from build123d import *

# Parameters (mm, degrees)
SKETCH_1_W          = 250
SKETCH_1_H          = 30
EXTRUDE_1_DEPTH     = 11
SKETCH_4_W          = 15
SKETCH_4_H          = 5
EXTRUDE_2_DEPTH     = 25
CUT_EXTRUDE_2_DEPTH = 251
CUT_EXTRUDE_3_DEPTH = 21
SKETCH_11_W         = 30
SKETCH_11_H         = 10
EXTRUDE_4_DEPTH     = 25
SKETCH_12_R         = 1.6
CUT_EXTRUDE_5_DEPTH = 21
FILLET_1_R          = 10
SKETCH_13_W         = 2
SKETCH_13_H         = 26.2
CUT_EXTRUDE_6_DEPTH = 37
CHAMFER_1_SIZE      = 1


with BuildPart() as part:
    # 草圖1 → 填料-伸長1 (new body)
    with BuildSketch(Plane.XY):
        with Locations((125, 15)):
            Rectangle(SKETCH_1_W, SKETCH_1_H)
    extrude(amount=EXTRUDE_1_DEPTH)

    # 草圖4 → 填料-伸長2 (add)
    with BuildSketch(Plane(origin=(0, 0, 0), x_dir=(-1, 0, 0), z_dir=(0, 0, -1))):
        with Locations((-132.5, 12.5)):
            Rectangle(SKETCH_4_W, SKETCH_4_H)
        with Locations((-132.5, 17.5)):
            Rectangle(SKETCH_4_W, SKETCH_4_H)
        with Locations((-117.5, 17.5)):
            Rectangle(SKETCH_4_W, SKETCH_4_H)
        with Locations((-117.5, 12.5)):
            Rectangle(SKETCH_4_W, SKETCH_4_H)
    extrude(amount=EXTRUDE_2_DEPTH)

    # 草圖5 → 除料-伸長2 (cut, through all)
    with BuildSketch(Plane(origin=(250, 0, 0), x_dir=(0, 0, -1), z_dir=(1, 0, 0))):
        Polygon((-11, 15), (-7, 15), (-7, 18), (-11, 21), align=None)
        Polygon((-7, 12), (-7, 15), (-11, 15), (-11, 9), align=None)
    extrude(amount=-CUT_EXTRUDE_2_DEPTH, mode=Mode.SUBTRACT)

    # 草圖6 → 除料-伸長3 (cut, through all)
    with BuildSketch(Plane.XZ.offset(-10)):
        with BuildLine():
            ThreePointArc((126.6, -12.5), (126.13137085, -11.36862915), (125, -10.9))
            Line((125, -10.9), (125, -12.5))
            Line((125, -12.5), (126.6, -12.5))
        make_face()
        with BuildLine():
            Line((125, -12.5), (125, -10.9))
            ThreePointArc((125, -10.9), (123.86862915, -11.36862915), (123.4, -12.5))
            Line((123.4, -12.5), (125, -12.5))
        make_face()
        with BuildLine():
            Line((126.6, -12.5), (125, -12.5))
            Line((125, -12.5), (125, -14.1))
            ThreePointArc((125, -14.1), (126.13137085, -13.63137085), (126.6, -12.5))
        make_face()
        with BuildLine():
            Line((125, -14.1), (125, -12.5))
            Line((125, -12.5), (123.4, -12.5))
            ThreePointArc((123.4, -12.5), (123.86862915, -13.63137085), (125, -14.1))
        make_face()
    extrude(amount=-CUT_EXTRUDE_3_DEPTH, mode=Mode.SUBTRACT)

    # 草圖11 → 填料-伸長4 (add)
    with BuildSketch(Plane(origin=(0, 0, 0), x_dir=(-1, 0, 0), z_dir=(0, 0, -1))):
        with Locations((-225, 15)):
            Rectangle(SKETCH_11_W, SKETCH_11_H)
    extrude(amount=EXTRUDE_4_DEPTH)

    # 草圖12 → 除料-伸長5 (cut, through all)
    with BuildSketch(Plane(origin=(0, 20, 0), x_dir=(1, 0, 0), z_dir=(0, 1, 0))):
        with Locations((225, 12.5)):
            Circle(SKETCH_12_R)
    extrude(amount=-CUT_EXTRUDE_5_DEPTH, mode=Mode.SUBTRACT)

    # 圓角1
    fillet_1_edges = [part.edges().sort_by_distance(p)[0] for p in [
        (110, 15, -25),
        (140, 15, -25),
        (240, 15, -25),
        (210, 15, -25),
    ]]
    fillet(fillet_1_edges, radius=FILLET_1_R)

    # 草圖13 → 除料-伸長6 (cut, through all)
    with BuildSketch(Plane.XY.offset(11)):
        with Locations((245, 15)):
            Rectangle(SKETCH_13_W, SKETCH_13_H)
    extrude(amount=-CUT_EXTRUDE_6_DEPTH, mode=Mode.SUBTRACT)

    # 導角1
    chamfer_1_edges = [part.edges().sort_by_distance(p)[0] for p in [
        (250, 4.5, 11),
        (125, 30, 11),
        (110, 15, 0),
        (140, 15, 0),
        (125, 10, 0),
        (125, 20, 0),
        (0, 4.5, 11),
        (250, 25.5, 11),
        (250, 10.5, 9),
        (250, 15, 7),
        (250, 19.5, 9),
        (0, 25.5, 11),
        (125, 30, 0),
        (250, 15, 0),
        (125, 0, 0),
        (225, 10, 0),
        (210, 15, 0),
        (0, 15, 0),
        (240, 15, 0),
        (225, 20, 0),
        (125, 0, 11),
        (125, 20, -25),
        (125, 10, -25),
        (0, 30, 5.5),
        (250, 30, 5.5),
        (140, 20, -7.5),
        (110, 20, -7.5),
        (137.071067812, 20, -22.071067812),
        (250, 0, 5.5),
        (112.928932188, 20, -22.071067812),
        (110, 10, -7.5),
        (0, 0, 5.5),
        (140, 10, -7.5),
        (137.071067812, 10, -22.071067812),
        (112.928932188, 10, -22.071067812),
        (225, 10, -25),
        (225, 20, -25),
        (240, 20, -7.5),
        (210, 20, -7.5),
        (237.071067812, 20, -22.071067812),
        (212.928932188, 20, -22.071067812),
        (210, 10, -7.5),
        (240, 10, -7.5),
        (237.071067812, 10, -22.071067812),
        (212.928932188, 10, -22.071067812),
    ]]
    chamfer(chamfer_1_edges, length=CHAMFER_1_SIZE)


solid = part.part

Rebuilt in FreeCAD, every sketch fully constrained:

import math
import FreeCAD as App
import Part
import Sketcher
from FreeCAD import Vector
Q = App.Units.Quantity


def edges_at(feature, points):
    """Names of the edges that pass closest to the given points."""
    edges = feature.Shape.Edges
    near = lambda p: min(range(len(edges)), key=lambda i: edges[i].distToShape(Part.Vertex(*p))[0])
    return sorted({f"Edge{near(p) + 1}" for p in points})


def add_polygon(sketch, points):
    """Adds a closed chain of lines whose ends are joined by coincident constraints."""
    first, n = sketch.GeometryCount, len(points)
    for a, b in zip(points, points[1:] + points[:1]):
        sketch.addGeometry(Part.LineSegment(App.Vector(*a, 0), App.Vector(*b, 0)), False)
    for i in range(n):
        sketch.addConstraint(Sketcher.Constraint("Coincident", first + i, 2, first + (i + 1) % n, 1))

doc = App.newDocument("Part")
body = doc.addObject("PartDesign::Body", "Body")

sketch1 = body.newObject("Sketcher::SketchObject", "Sketch")
sketch1.AttachmentSupport = (doc.getObject("XY_Plane"), [""])
sketch1.MapMode = "FlatFace"
add_polygon(sketch1, [(0, 30), (0, 0), (250, 0), (250, 30)])
sketch1.addConstraint(Sketcher.Constraint("Vertical", 0))
sketch1.addConstraint(Sketcher.Constraint("Horizontal", 1))
sketch1.addConstraint(Sketcher.Constraint("Vertical", 2))
sketch1.addConstraint(Sketcher.Constraint("Horizontal", 3))
sketch1.addConstraint(Sketcher.Constraint("Coincident", 0, 2, -1, 1))
sketch1.addConstraint(Sketcher.Constraint("DistanceX", 1, 1, 1, 2, Q("250 mm")))
sketch1.addConstraint(Sketcher.Constraint("DistanceY", 0, 2, 0, 1, Q("30 mm")))
pad1 = body.newObject("PartDesign::Pad", "Pad")
pad1.Profile = sketch1
pad1.Length = 11

sketch2 = body.newObject("Sketcher::SketchObject", "Sketch001")
sketch2.AttachmentSupport = (doc.getObject("XY_Plane"), [""])
sketch2.MapMode = "FlatFace"
add_polygon(sketch2, [(140, 10), (110, 10), (110, 20), (140, 20)])
sketch2.addConstraint(Sketcher.Constraint("Horizontal", 0))
sketch2.addConstraint(Sketcher.Constraint("Vertical", 1))
sketch2.addConstraint(Sketcher.Constraint("Horizontal", 2))
sketch2.addConstraint(Sketcher.Constraint("Vertical", 3))
sketch2.addConstraint(Sketcher.Constraint("DistanceX", 0, 2, 0, 1, Q("30 mm")))
sketch2.addConstraint(Sketcher.Constraint("DistanceY", 1, 1, 1, 2, Q("10 mm")))
sketch2.addConstraint(Sketcher.Constraint("DistanceX", -1, 1, 0, 2, Q("110 mm")))
sketch2.addConstraint(Sketcher.Constraint("DistanceY", -1, 1, 0, 2, Q("10 mm")))
pad2 = body.newObject("PartDesign::Pad", "Pad001")
pad2.Profile = sketch2
pad2.Length = 25
pad2.Reversed = True

sketch3 = body.newObject("Sketcher::SketchObject", "Sketch002")
sketch3.AttachmentSupport = (doc.getObject("YZ_Plane"), [""])
sketch3.MapMode = "FlatFace"
sketch3.AttachmentOffset = App.Placement(Vector(0, 0, 250), App.Rotation())
add_polygon(sketch3, [(18, 7), (21, 11), (9, 11), (12, 7)])
sketch3.addConstraint(Sketcher.Constraint("Horizontal", 1))
sketch3.addConstraint(Sketcher.Constraint("Horizontal", 3))
sketch3.addConstraint(Sketcher.Constraint("Equal", 0, 2))
sketch3.addConstraint(Sketcher.Constraint("DistanceX", 1, 2, 1, 1, Q("12 mm")))
sketch3.addConstraint(Sketcher.Constraint("DistanceX", 3, 1, 3, 2, Q("6 mm")))
sketch3.addConstraint(Sketcher.Constraint("Distance", 0, Q("5 mm")))
sketch3.addConstraint(Sketcher.Constraint("DistanceX", -1, 1, 0, 2, Q("21 mm")))
sketch3.addConstraint(Sketcher.Constraint("DistanceY", -1, 1, 0, 2, Q("11 mm")))
pocket1 = body.newObject("PartDesign::Pocket", "Pocket")
pocket1.Profile = sketch3
pocket1.Type = "ThroughAll"

sketch4 = body.newObject("Sketcher::SketchObject", "Sketch003")
sketch4.AttachmentSupport = (doc.getObject("XZ_Plane"), [""])
sketch4.MapMode = "FlatFace"
sketch4.AttachmentOffset = App.Placement(Vector(0, 0, -10), App.Rotation())
sketch4.addGeometry(Part.ArcOfCircle(Part.Circle(Vector(125, -12.5, 0), Vector(0, 0, 1), 1.6), math.radians(90), math.radians(180)), False)
sketch4.addGeometry(Part.ArcOfCircle(Part.Circle(Vector(125, -12.5, 0), Vector(0, 0, 1), 1.6), math.radians(180), math.radians(270)), False)
sketch4.addGeometry(Part.ArcOfCircle(Part.Circle(Vector(125, -12.5, 0), Vector(0, 0, 1), 1.6), math.radians(-90), math.radians(0)), False)
sketch4.addGeometry(Part.ArcOfCircle(Part.Circle(Vector(125, -12.5, 0), Vector(0, 0, 1), 1.6), math.radians(0), math.radians(90)), False)
sketch4.addConstraint(Sketcher.Constraint("Tangent", 0, 2, 1, 1))
sketch4.addConstraint(Sketcher.Constraint("Tangent", 1, 2, 2, 1))
sketch4.addConstraint(Sketcher.Constraint("Tangent", 2, 2, 3, 1))
sketch4.addConstraint(Sketcher.Constraint("Tangent", 3, 2, 0, 1))
sketch4.addConstraint(Sketcher.Constraint("Equal", 0, 1))
sketch4.addConstraint(Sketcher.Constraint("Horizontal", 3, 3, 0, 2))
sketch4.addConstraint(Sketcher.Constraint("Horizontal", 0, 2, 2, 2))
sketch4.addConstraint(Sketcher.Constraint("Vertical", 3, 3, 1, 2))
sketch4.addConstraint(Sketcher.Constraint("Vertical", 1, 2, 3, 2))
sketch4.addConstraint(Sketcher.Constraint("Radius", 0, Q("1.6 mm")))
sketch4.addConstraint(Sketcher.Constraint("DistanceX", -1, 1, 0, 3, Q("125 mm")))
sketch4.addConstraint(Sketcher.Constraint("DistanceY", 0, 3, -1, 1, Q("12.5 mm")))
pocket2 = body.newObject("PartDesign::Pocket", "Pocket001")
pocket2.Profile = sketch4
pocket2.Type = "ThroughAll"

sketch5 = body.newObject("Sketcher::SketchObject", "Sketch004")
sketch5.AttachmentSupport = (doc.getObject("XY_Plane"), [""])
sketch5.MapMode = "FlatFace"
add_polygon(sketch5, [(240, 20), (240, 10), (210, 10), (210, 20)])
sketch5.addConstraint(Sketcher.Constraint("Vertical", 0))
sketch5.addConstraint(Sketcher.Constraint("Horizontal", 1))
sketch5.addConstraint(Sketcher.Constraint("Vertical", 2))
sketch5.addConstraint(Sketcher.Constraint("Horizontal", 3))
sketch5.addConstraint(Sketcher.Constraint("DistanceX", 1, 2, 1, 1, Q("30 mm")))
sketch5.addConstraint(Sketcher.Constraint("DistanceY", 0, 2, 0, 1, Q("10 mm")))
sketch5.addConstraint(Sketcher.Constraint("DistanceX", -1, 1, 0, 2, Q("240 mm")))
sketch5.addConstraint(Sketcher.Constraint("DistanceY", -1, 1, 0, 2, Q("10 mm")))
pad3 = body.newObject("PartDesign::Pad", "Pad002")
pad3.Profile = sketch5
pad3.Length = 25
pad3.Reversed = True

sketch6 = body.newObject("Sketcher::SketchObject", "Sketch005")
sketch6.AttachmentSupport = (doc.getObject("XZ_Plane"), [""])
sketch6.MapMode = "FlatFace"
sketch6.AttachmentOffset = App.Placement(Vector(0, 0, -20), App.Rotation())
sketch6.addGeometry(Part.Circle(Vector(225, -12.5, 0), Vector(0, 0, 1), 1.6), False)
sketch6.addConstraint(Sketcher.Constraint("Diameter", 0, Q("3.2 mm")))
sketch6.addConstraint(Sketcher.Constraint("DistanceX", -1, 1, 0, 3, Q("225 mm")))
sketch6.addConstraint(Sketcher.Constraint("DistanceY", 0, 3, -1, 1, Q("12.5 mm")))
pocket3 = body.newObject("PartDesign::Pocket", "Pocket002")
pocket3.Profile = sketch6
pocket3.Type = "ThroughAll"
pocket3.Reversed = True
doc.recompute()

fillet = body.newObject("PartDesign::Fillet", "Fillet")
fillet.Base = (pocket3, edges_at(pocket3, [
    (110, 15, -25),
    (140, 15, -25),
    (240, 15, -25),
    (210, 15, -25),
]))
fillet.Radius = 10

sketch7 = body.newObject("Sketcher::SketchObject", "Sketch006")
sketch7.AttachmentSupport = (doc.getObject("XY_Plane"), [""])
sketch7.MapMode = "FlatFace"
sketch7.AttachmentOffset = App.Placement(Vector(0, 0, 11), App.Rotation())
add_polygon(sketch7, [(244, 28.1), (244, 1.9), (246, 1.9), (246, 28.1)])
sketch7.addConstraint(Sketcher.Constraint("Vertical", 0))
sketch7.addConstraint(Sketcher.Constraint("Horizontal", 1))
sketch7.addConstraint(Sketcher.Constraint("Vertical", 2))
sketch7.addConstraint(Sketcher.Constraint("Horizontal", 3))
sketch7.addConstraint(Sketcher.Constraint("DistanceX", 1, 1, 1, 2, Q("2 mm")))
sketch7.addConstraint(Sketcher.Constraint("DistanceY", 0, 2, 0, 1, Q("26.2 mm")))
sketch7.addConstraint(Sketcher.Constraint("DistanceX", -1, 1, 0, 2, Q("244 mm")))
sketch7.addConstraint(Sketcher.Constraint("DistanceY", -1, 1, 0, 2, Q("1.9 mm")))
pocket4 = body.newObject("PartDesign::Pocket", "Pocket003")
pocket4.Profile = sketch7
pocket4.Type = "ThroughAll"
doc.recompute()

chamfer = body.newObject("PartDesign::Chamfer", "Chamfer")
chamfer.Base = (pocket4, edges_at(pocket4, [
    (250, 4.5, 11),
    (125, 30, 11),
    (110, 15, 0),
    (140, 15, 0),
    (125, 10, 0),
    (125, 20, 0),
    (0, 4.5, 11),
    (250, 25.5, 11),
    (250, 10.5, 9),
    (250, 15, 7),
    (250, 19.5, 9),
    (0, 25.5, 11),
    (125, 30, 0),
    (250, 15, 0),
    (125, 0, 0),
    (225, 10, 0),
    (210, 15, 0),
    (0, 15, 0),
    (240, 15, 0),
    (225, 20, 0),
    (125, 0, 11),
    (125, 20, -25),
    (125, 10, -25),
    (0, 30, 5.5),
    (250, 30, 5.5),
    (140, 20, -7.5),
    (110, 20, -7.5),
    (137.071, 20, -22.071),
    (250, 0, 5.5),
    (112.929, 20, -22.071),
    (110, 10, -7.5),
    (0, 0, 5.5),
    (140, 10, -7.5),
    (137.071, 10, -22.071),
    (112.929, 10, -22.071),
    (225, 10, -25),
    (225, 20, -25),
    (240, 20, -7.5),
    (210, 20, -7.5),
    (237.071, 20, -22.071),
    (212.929, 20, -22.071),
    (210, 10, -7.5),
    (240, 10, -7.5),
    (237.071, 10, -22.071),
    (212.929, 10, -22.071),
]))
chamfer.Size = 1

doc.recompute()
